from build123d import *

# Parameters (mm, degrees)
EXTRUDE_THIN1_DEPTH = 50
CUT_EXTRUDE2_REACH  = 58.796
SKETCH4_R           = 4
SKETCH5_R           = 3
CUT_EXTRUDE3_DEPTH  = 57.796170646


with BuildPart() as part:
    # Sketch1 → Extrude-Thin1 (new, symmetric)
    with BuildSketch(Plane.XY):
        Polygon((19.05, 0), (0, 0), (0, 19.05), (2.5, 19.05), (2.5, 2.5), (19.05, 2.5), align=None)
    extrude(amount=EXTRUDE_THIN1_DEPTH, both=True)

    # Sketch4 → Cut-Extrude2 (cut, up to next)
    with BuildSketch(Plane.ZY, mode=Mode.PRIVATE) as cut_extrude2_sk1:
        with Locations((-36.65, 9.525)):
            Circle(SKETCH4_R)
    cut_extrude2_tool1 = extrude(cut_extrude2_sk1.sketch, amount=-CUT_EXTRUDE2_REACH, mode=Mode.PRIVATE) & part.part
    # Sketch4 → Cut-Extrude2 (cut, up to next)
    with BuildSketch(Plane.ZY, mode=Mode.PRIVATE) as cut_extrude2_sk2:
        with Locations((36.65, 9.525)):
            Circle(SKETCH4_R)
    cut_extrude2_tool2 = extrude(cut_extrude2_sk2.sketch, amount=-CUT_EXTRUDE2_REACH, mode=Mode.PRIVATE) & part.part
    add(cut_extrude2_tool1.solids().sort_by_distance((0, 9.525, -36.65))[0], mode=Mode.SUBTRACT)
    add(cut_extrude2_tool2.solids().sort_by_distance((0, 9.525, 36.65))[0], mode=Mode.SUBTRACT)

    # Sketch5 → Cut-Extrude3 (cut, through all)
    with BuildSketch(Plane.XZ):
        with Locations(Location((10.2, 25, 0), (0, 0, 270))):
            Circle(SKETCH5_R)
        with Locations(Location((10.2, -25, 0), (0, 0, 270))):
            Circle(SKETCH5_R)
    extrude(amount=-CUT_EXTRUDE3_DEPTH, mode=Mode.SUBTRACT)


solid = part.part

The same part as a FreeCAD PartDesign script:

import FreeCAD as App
import Part
import Sketcher
Q = App.Units.Quantity


def add_polygon(sketch, points):
    """Adds a closed chain of lines whose ends are joined by coincident constraints."""
    first, n = sketch.GeometryCount, len(points)
    for a, b in zip(points, points[1:] + points[:1]):
        sketch.addGeometry(Part.LineSegment(App.Vector(*a, 0), App.Vector(*b, 0)), False)
    for i in range(n):
        sketch.addConstraint(Sketcher.Constraint("Coincident", first + i, 2, first + (i + 1) % n, 1))

doc = App.newDocument("Part")
body = doc.addObject("PartDesign::Body", "Body")

# Sketch on XY plane
sketch1 = body.newObject("Sketcher::SketchObject", "Sketch")
sketch1.AttachmentSupport = (doc.getObject("XY_Plane"), [""])
sketch1.MapMode = "FlatFace"
add_polygon(sketch1, [(0, 0), (19.1, 0), (19.1, 2.5), (2.5, 2.5), (2.5, 19.1), (0, 19.1)])  # lines 0-5
sketch1.addConstraint([
    Sketcher.Constraint("Horizontal", 0),
    Sketcher.Constraint("Vertical", 1),
    Sketcher.Constraint("Horizontal", 2),
    Sketcher.Constraint("Vertical", 3),
    Sketcher.Constraint("Horizontal", 4),
    Sketcher.Constraint("Vertical", 5),
    Sketcher.Constraint("Coincident", 5, 2, -1, 1),
    Sketcher.Constraint("Equal", 4, 1),
    Sketcher.Constraint("Equal", 2, 3),
    Sketcher.Constraint("DistanceX", 4, 2, 4, 1, Q("2.5 mm")),
    Sketcher.Constraint("DistanceX", 0, 1, 0, 2, Q("19.05 mm")),
])
pad1 = body.newObject("PartDesign::Pad", "Pad")
pad1.Profile = sketch1
pad1.Length = 100
pad1.Midplane = True

# Sketch on YZ plane
sketch2 = body.newObject("Sketcher::SketchObject", "Sketch001")
sketch2.AttachmentSupport = (doc.getObject("YZ_Plane"), [""])
sketch2.MapMode = "FlatFace"
sketch2.addGeometry(Part.Circle(App.Vector(9.5, -36.6, 0), App.Vector(0, 0, 1), 4), False)
sketch2.addConstraint([
    Sketcher.Constraint("Diameter", 0, Q("8 mm")),
    Sketcher.Constraint("DistanceY", 0, 3, -1, 1, Q("36.65 mm")),
    Sketcher.Constraint("DistanceX", -1, 1, 0, 3, Q("9.525 mm")),
])
pocket1 = body.newObject("PartDesign::Pocket", "Pocket")
pocket1.Profile = sketch2
pocket1.Type = "UpToFirst"
pocket1.Reversed = True

# Sketch on YZ plane
sketch3 = body.newObject("Sketcher::SketchObject", "Sketch002")
sketch3.AttachmentSupport = (doc.getObject("YZ_Plane"), [""])
sketch3.MapMode = "FlatFace"
sketch3.addGeometry(Part.Circle(App.Vector(9.5, 36.6, 0), App.Vector(0, 0, 1), 4), False)
sketch3.addConstraint([
    Sketcher.Constraint("Diameter", 0, Q("8 mm")),
    Sketcher.Constraint("DistanceY", -1, 1, 0, 3, Q("36.65 mm")),
    Sketcher.Constraint("DistanceX", -1, 1, 0, 3, Q("9.525 mm")),
])
pocket2 = body.newObject("PartDesign::Pocket", "Pocket001")
pocket2.Profile = sketch3
pocket2.Type = "UpToFirst"
pocket2.Reversed = True

# Sketch on XZ plane
sketch4 = body.newObject("Sketcher::SketchObject", "Sketch003")
sketch4.AttachmentSupport = (doc.getObject("XZ_Plane"), [""])
sketch4.MapMode = "FlatFace"
sketch4.addGeometry([
    Part.Circle(App.Vector(10.2, 25, 0), App.Vector(0, 0, 1), 3),
    Part.Circle(App.Vector(10.2, -25, 0), App.Vector(0, 0, 1), 3),
], False)
sketch4.addConstraint([
    Sketcher.Constraint("Equal", 0, 1),
    Sketcher.Constraint("Symmetric", 0, 3, 1, 3, -1),
    Sketcher.Constraint("Diameter", 0, Q("6 mm")),
    Sketcher.Constraint("DistanceY", -1, 1, 0, 3, Q("25 mm")),
    Sketcher.Constraint("DistanceX", -1, 1, 0, 3, Q("10.2 mm")),
])
pocket3 = body.newObject("PartDesign::Pocket", "Pocket002")
pocket3.Profile = sketch4
pocket3.Type = "ThroughAll"

doc.recompute()
